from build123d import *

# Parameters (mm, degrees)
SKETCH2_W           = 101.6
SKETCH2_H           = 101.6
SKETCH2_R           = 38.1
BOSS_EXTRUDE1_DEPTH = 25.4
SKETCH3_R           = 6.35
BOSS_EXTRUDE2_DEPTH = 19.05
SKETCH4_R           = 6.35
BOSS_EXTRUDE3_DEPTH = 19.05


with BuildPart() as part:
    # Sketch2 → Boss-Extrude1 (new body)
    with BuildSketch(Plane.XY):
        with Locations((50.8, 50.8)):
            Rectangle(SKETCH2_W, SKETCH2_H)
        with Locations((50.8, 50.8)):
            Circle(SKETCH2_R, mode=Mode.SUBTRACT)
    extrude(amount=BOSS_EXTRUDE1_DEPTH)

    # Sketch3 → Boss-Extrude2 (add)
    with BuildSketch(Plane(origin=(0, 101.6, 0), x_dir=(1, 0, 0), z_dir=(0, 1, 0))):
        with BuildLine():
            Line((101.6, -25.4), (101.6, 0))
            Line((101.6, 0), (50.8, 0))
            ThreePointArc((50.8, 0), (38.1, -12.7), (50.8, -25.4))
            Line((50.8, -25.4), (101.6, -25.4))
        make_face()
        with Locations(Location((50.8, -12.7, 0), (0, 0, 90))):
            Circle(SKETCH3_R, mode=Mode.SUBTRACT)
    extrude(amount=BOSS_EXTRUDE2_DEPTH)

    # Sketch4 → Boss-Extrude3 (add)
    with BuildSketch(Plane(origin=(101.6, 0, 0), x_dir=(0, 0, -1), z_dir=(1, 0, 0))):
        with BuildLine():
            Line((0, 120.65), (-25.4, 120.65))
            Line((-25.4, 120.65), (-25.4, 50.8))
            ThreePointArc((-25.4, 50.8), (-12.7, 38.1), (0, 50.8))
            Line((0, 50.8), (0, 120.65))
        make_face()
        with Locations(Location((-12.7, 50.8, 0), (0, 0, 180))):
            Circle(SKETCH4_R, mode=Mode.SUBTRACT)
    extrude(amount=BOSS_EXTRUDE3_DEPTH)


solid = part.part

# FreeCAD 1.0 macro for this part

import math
import FreeCAD as App
import Part
import Sketcher

V = App.Vector
Q = App.Units.Quantity

doc = App.newDocument("Part")
body = doc.addObject("PartDesign::Body", "Body")

# Sketch on XY plane
sketch1 = body.newObject("Sketcher::SketchObject", "Sketch")
sketch1.AttachmentSupport = (doc.getObject("XY_Plane"), [""])
sketch1.MapMode = "FlatFace"
sketch1.addGeometry(Part.LineSegment(V(0, 102, 0), V(0, 0, 0)), False)
sketch1.addGeometry(Part.LineSegment(V(0, 0, 0), V(102, 0, 0)), False)
sketch1.addGeometry(Part.LineSegment(V(102, 0, 0), V(102, 102, 0)), False)
sketch1.addGeometry(Part.LineSegment(V(102, 102, 0), V(0, 102, 0)), False)
sketch1.addGeometry(Part.Circle(V(51, 51, 0), V(0, 0, 1), 38), False)
sketch1.addConstraint(Sketcher.Constraint("Coincident", 0, 2, 1, 1))
sketch1.addConstraint(Sketcher.Constraint("Coincident", 1, 2, 2, 1))
sketch1.addConstraint(Sketcher.Constraint("Coincident", 2, 2, 3, 1))
sketch1.addConstraint(Sketcher.Constraint("Coincident", 3, 2, 0, 1))
sketch1.addConstraint(Sketcher.Constraint("Vertical", 0))
sketch1.addConstraint(Sketcher.Constraint("Horizontal", 1))
sketch1.addConstraint(Sketcher.Constraint("Vertical", 2))
sketch1.addConstraint(Sketcher.Constraint("Horizontal", 3))
sketch1.addConstraint(Sketcher.Constraint("Coincident", 0, 2, -1, 1))
sketch1.addConstraint(Sketcher.Constraint("Equal", 3, 0))
sketch1.addConstraint(Sketcher.Constraint("Diameter", 4, Q("3 in")))
sketch1.addConstraint(Sketcher.Constraint("DistanceX", 1, 1, 1, 2, Q("4 in")))
sketch1.addConstraint(Sketcher.Constraint("DistanceX", -1, 1, 4, 3, Q("2 in")))
sketch1.addConstraint(Sketcher.Constraint("DistanceY", -1, 1, 4, 3, Q("2 in")))
pad1 = body.newObject("PartDesign::Pad", "Pad")
pad1.Profile = sketch1
pad1.Length = Q("1 in")

# Sketch on XZ plane
sketch2 = body.newObject("Sketcher::SketchObject", "Sketch001")
sketch2.AttachmentSupport = (doc.getObject("XZ_Plane"), [""])
sketch2.MapMode = "FlatFace"
sketch2.AttachmentOffset = App.Placement(V(0, 0, -4 * 25.4), App.Rotation())
sketch2.addGeometry(Part.LineSegment(V(102, 25, 0), V(102, 0, 0)), False)
sketch2.addGeometry(Part.LineSegment(V(102, 0, 0), V(51, 0, 0)), False)
sketch2.addGeometry(Part.ArcOfCircle(Part.Circle(V(51, 13, 0), V(0, 0, 1), 13), math.radians(90), math.radians(270)), False)
sketch2.addGeometry(Part.LineSegment(V(51, 25, 0), V(102, 25, 0)), False)
sketch2.addGeometry(Part.Circle(V(51, 13, 0), V(0, 0, 1), 6), False)
sketch2.addConstraint(Sketcher.Constraint("Coincident", 0, 2, 1, 1))
sketch2.addConstraint(Sketcher.Constraint("Tangent", 1, 2, 2, 2))
sketch2.addConstraint(Sketcher.Constraint("Tangent", 2, 1, 3, 1))
sketch2.addConstraint(Sketcher.Constraint("Coincident", 3, 2, 0, 1))
sketch2.addConstraint(Sketcher.Constraint("Vertical", 0))
sketch2.addConstraint(Sketcher.Constraint("Horizontal", 1))
sketch2.addConstraint(Sketcher.Constraint("Horizontal", 3))
sketch2.addConstraint(Sketcher.Constraint("Coincident", 4, 3, 2, 3))
sketch2.addConstraint(Sketcher.Constraint("PointOnObject", 0, 2, -1))
sketch2.addConstraint(Sketcher.Constraint("Diameter", 4, Q("0.5 in")))
sketch2.addConstraint(Sketcher.Constraint("Radius", 2, Q("0.5 in")))
sketch2.addConstraint(Sketcher.Constraint("DistanceX", 1, 2, 1, 1, Q("2 in")))
sketch2.addConstraint(Sketcher.Constraint("DistanceX", -1, 1, 2, 3, Q("2 in")))
pad2 = body.newObject("PartDesign::Pad", "Pad001")
pad2.Profile = sketch2
pad2.Length = Q("0.75 in")
pad2.Reversed = True

# Sketch on YZ plane
sketch3 = body.newObject("Sketcher::SketchObject", "Sketch002")
sketch3.AttachmentSupport = (doc.getObject("YZ_Plane"), [""])
sketch3.MapMode = "FlatFace"
sketch3.AttachmentOffset = App.Placement(V(0, 0, 4 * 25.4), App.Rotation())
sketch3.addGeometry(Part.LineSegment(V(121, 0, 0), V(121, 25, 0)), False)
sketch3.addGeometry(Part.LineSegment(V(121, 25, 0), V(51, 25, 0)), False)
sketch3.addGeometry(Part.ArcOfCircle(Part.Circle(V(51, 13, 0), V(0, 0, 1), 13), math.radians(90), math.radians(270)), False)
sketch3.addGeometry(Part.LineSegment(V(51, 0, 0), V(121, 0, 0)), False)
sketch3.addGeometry(Part.Circle(V(51, 13, 0), V(0, 0, 1), 6), False)
sketch3.addConstraint(Sketcher.Constraint("Coincident", 0, 2, 1, 1))
sketch3.addConstraint(Sketcher.Constraint("Tangent", 1, 2, 2, 1))
sketch3.addConstraint(Sketcher.Constraint("Tangent", 2, 2, 3, 1))
sketch3.addConstraint(Sketcher.Constraint("Coincident", 3, 2, 0, 1))
sketch3.addConstraint(Sketcher.Constraint("Vertical", 0))
sketch3.addConstraint(Sketcher.Constraint("Horizontal", 1))
sketch3.addConstraint(Sketcher.Constraint("Horizontal", 3))
sketch3.addConstraint(Sketcher.Constraint("Coincident", 4, 3, 2, 3))
sketch3.addConstraint(Sketcher.Constraint("PointOnObject", 2, 2, -1))
sketch3.addConstraint(Sketcher.Constraint("Diameter", 4, Q("0.5 in")))
sketch3.addConstraint(Sketcher.Constraint("Radius", 2, Q("0.5 in")))
sketch3.addConstraint(Sketcher.Constraint("DistanceX", -1, 1, 2, 3, Q("2 in")))
sketch3.addConstraint(Sketcher.Constraint("DistanceX", 1, 2, 1, 1, Q("2.75 in")))
pad3 = body.newObject("PartDesign::Pad", "Pad002")
pad3.Profile = sketch3
pad3.Length = Q("0.75 in")

doc.recompute()
